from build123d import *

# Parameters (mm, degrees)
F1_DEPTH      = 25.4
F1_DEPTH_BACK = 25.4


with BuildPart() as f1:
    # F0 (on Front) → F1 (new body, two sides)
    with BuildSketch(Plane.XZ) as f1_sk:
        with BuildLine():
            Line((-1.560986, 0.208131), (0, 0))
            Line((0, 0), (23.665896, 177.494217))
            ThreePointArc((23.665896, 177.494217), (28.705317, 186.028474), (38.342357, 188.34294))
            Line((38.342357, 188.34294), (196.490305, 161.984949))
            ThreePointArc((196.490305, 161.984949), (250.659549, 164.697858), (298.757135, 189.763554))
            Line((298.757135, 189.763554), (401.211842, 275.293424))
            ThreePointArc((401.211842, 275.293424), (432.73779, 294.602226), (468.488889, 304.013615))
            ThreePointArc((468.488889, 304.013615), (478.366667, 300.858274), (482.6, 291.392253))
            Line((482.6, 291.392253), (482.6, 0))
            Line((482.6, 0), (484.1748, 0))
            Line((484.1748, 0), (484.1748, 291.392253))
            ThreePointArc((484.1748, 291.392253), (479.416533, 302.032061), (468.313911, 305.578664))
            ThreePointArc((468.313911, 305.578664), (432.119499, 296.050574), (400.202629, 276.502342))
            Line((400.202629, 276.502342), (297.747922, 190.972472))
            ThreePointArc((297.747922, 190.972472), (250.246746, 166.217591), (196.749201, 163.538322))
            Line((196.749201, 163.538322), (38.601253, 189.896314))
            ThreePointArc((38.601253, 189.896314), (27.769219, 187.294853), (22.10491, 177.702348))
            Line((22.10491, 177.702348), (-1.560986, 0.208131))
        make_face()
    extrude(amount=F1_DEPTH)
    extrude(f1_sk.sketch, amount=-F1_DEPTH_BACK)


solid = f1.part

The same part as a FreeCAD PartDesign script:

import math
import FreeCAD as App
import Part
import Sketcher

V = App.Vector
Q = App.Units.Quantity

doc = App.newDocument("Part")
params = doc.addObject("Spreadsheet::Sheet", "Params")
for row, (alias, value) in enumerate([
    ("sketch1_radius", "5 in"),
    ("sketch1_radius2", "5.0000001 in"),
    ("sketch1_radius3", "0.5 in"),
    ("sketch1_radius4", "0.562 in"),
    ("pad1_length", "1 in"),
    ("pad1_length2", "1 in"),
], start=1):
    params.set(f"A{row}", alias)
    params.set(f"B{row}", "=" + value)
    params.setAlias(f"B{row}", alias)

body = doc.addObject("PartDesign::Body", "Body")

sketch1 = doc.addObject("Sketcher::SketchObject", "Sketch")
body.addObject(sketch1)
sketch1.AttachmentSupport = (doc.XZ_Plane, [""])
sketch1.MapMode = "FlatFace"
sketch1.addGeometry(Part.LineSegment(V(-1.6, 0.2, 0), V(0, 0, 0)), False)
sketch1.addGeometry(Part.LineSegment(V(0, 0, 0), V(23.7, 177.5, 0)), False)
sketch1.addGeometry(Part.ArcOfCircle(Part.Circle(V(36.3, 175.8, 0), V(0, 0, 1), 12.7), math.radians(81), math.radians(172)), False)
sketch1.addGeometry(Part.LineSegment(V(38.3, 188.3, 0), V(196.5, 162, 0)), False)
sketch1.addGeometry(Part.ArcOfCircle(Part.Circle(V(217.4, 287.3, 0), V(0, 0, 1), 127), math.radians(-99), math.radians(-50)), False)
sketch1.addGeometry(Part.LineSegment(V(298.8, 189.8, 0), V(401.2, 275.3, 0)), False)
sketch1.addGeometry(Part.ArcOfCircle(Part.Circle(V(482.6, 177.8, 0), V(0, 0, 1), 127), math.radians(96), math.radians(130)), False)
sketch1.addGeometry(Part.ArcOfCircle(Part.Circle(V(469.9, 291.4, 0), V(0, 0, 1), 12.7), math.radians(0), math.radians(96)), False)
sketch1.addGeometry(Part.LineSegment(V(482.6, 291.4, 0), V(482.6, 0, 0)), False)
sketch1.addGeometry(Part.LineSegment(V(482.6, 0, 0), V(484.2, 0, 0)), False)
sketch1.addGeometry(Part.LineSegment(V(484.2, 0, 0), V(484.2, 291.4, 0)), False)
sketch1.addGeometry(Part.ArcOfCircle(Part.Circle(V(469.9, 291.4, 0), V(0, 0, 1), 14.3), math.radians(0), math.radians(96)), False)
sketch1.addGeometry(Part.ArcOfCircle(Part.Circle(V(482.6, 177.8, 0), V(0, 0, 1), 128.6), math.radians(96), math.radians(130)), False)
sketch1.addGeometry(Part.LineSegment(V(400.2, 276.5, 0), V(297.7, 191, 0)), False)
sketch1.addGeometry(Part.ArcOfCircle(Part.Circle(V(217.4, 287.3, 0), V(0, 0, 1), 125.4), math.radians(-99), math.radians(-50)), False)
sketch1.addGeometry(Part.LineSegment(V(196.7, 163.5, 0), V(38.6, 189.9, 0)), False)
sketch1.addGeometry(Part.ArcOfCircle(Part.Circle(V(36.3, 175.8, 0), V(0, 0, 1), 14.3), math.radians(81), math.radians(172)), False)
sketch1.addGeometry(Part.LineSegment(V(22.1, 177.7, 0), V(-1.6, 0.2, 0)), False)
sketch1.addConstraint(Sketcher.Constraint("Coincident", 0, 2, 1, 1))
sketch1.addConstraint(Sketcher.Constraint("Tangent", 1, 2, 2, 2))
sketch1.addConstraint(Sketcher.Constraint("Tangent", 2, 1, 3, 1))
sketch1.addConstraint(Sketcher.Constraint("Tangent", 3, 2, 4, 1))
sketch1.addConstraint(Sketcher.Constraint("Tangent", 4, 2, 5, 1))
sketch1.addConstraint(Sketcher.Constraint("Tangent", 5, 2, 6, 2))
sketch1.addConstraint(Sketcher.Constraint("Tangent", 6, 1, 7, 2))
sketch1.addConstraint(Sketcher.Constraint("Tangent", 7, 1, 8, 1))
sketch1.addConstraint(Sketcher.Constraint("Coincident", 8, 2, 9, 1))
sketch1.addConstraint(Sketcher.Constraint("Coincident", 9, 2, 10, 1))
sketch1.addConstraint(Sketcher.Constraint("Tangent", 10, 2, 11, 1))
sketch1.addConstraint(Sketcher.Constraint("Tangent", 11, 2, 12, 1))
sketch1.addConstraint(Sketcher.Constraint("Tangent", 12, 2, 13, 1))
sketch1.addConstraint(Sketcher.Constraint("Tangent", 13, 2, 14, 2))
sketch1.addConstraint(Sketcher.Constraint("Tangent", 14, 1, 15, 1))
sketch1.addConstraint(Sketcher.Constraint("Tangent", 15, 2, 16, 1))
sketch1.addConstraint(Sketcher.Constraint("Tangent", 16, 2, 17, 1))
sketch1.addConstraint(Sketcher.Constraint("Coincident", 17, 2, 0, 1))
sketch1.addConstraint(Sketcher.Constraint("Vertical", 8))
sketch1.addConstraint(Sketcher.Constraint("Horizontal", 9))
sketch1.addConstraint(Sketcher.Constraint("Vertical", 10))
sketch1.addConstraint(Sketcher.Constraint("Coincident", 0, 2, -1, 1))
sketch1.addConstraint(Sketcher.Constraint("Coincident", 11, 3, 7, 3))
sketch1.addConstraint(Sketcher.Constraint("Coincident", 12, 3, 6, 3))
sketch1.addConstraint(Sketcher.Constraint("Coincident", 14, 3, 4, 3))
sketch1.addConstraint(Sketcher.Constraint("Coincident", 16, 3, 2, 3))
sketch1.addConstraint(Sketcher.Constraint("Equal", 2, 7))
sketch1.addConstraint(Sketcher.Constraint("Equal", 11, 16))
sketch1.addConstraint(Sketcher.Constraint("PointOnObject", 8, 2, -1))
sketch1.addConstraint(Sketcher.Constraint("Perpendicular", 0, 1))
sketch1.addConstraint(Sketcher.Constraint("Parallel", 5, 13))
sketch1.addConstraint(Sketcher.Constraint("Parallel", 1, 17))
sketch1.addConstraint(Sketcher.Constraint("Vertical", 12, 3, 7, 1))
sketch1.addConstraint(Sketcher.Constraint("Radius", 4, Q("5 in")))
sketch1.addConstraint(Sketcher.Constraint("Radius", 6, Q("5.0000001 in")))
sketch1.addConstraint(Sketcher.Constraint("Radius", 2, Q("0.5 in")))
sketch1.addConstraint(Sketcher.Constraint("DistanceX", -1, 1, 6, 3, Q("19.0000001 in")))
sketch1.addConstraint(Sketcher.Constraint("DistanceY", -1, 1, 6, 3, Q("6.9999999 in")))
sketch1.addConstraint(Sketcher.Constraint("Radius", 11, Q("0.562 in")))
sketch1.addConstraint(Sketcher.Constraint("DistanceX", -1, 1, 14, 1, 196.749201))
sketch1.addConstraint(Sketcher.Constraint("DistanceX", -1, 1, 2, 3, 36.254489))
sketch1.addConstraint(Sketcher.Constraint("DistanceY", -1, 1, 2, 3, 175.815738))
sketch1.addConstraint(Sketcher.Constraint("DistanceY", -1, 1, 4, 3, 287.256978))
sketch1.setExpression("Constraints[33]", "Params.sketch1_radius")
sketch1.setExpression("Constraints[34]", "Params.sketch1_radius2")
sketch1.setExpression("Constraints[35]", "Params.sketch1_radius3")
sketch1.setExpression("Constraints[38]", "Params.sketch1_radius4")
pad1 = doc.addObject("PartDesign::Pad", "Pad")
body.addObject(pad1)
pad1.Profile = sketch1
pad1.Type = "TwoLengths"
pad1.setExpression("Length", "Params.pad1_length")
pad1.setExpression("Length2", "Params.pad1_length2")

doc.recompute()
